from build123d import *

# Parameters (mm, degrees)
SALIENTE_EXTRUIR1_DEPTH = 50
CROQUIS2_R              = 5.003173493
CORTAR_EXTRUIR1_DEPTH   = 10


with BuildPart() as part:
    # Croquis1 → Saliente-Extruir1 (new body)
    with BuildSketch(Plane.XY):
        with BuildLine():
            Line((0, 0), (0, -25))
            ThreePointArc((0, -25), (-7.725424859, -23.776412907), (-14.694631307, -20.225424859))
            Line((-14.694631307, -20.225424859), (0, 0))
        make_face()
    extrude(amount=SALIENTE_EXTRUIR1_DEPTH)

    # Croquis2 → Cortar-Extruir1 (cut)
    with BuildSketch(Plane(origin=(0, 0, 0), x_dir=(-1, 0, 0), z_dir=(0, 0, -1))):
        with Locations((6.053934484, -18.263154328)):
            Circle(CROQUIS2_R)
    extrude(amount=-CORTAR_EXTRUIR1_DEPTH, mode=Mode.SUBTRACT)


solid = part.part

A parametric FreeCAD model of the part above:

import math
import FreeCAD as App
import Part
import Sketcher
Q = App.Units.Quantity

doc = App.newDocument("Part")
body = doc.addObject("PartDesign::Body", "Body")

sketch1 = body.newObject("Sketcher::SketchObject", "Sketch")
sketch1.AttachmentSupport = (doc.getObject("XY_Plane"), [""])
sketch1.MapMode = "FlatFace"
sketch1.addGeometry(Part.LineSegment(App.Vector(0, -25, 0), App.Vector(0, 0, 0)), False)
sketch1.addGeometry(Part.LineSegment(App.Vector(0, 0, 0), App.Vector(-14.694631, -20.225425, 0)), False)
sketch1.addGeometry(Part.ArcOfCircle(Part.Circle(App.Vector(0, 0, 0), App.Vector(0, 0, 1), 25), math.radians(-126), math.radians(-90)), False)
sketch1.addConstraint(Sketcher.Constraint("Coincident", 0, 2, 1, 1))
sketch1.addConstraint(Sketcher.Constraint("Coincident", 1, 2, 2, 1))
sketch1.addConstraint(Sketcher.Constraint("Coincident", 2, 2, 0, 1))
sketch1.addConstraint(Sketcher.Constraint("Vertical", 0))
sketch1.addConstraint(Sketcher.Constraint("Coincident", 2, 3, -1, 1))
sketch1.addConstraint(Sketcher.Constraint("Coincident", 0, 2, -1, 1))
sketch1.addConstraint(Sketcher.Constraint("Radius", 2, 25.0))
sketch1.addConstraint(Sketcher.Constraint("Angle", 1, Q("-126 deg")))
pad1 = body.newObject("PartDesign::Pad", "Pad")
pad1.Profile = sketch1
pad1.Length = 50

sketch2 = body.newObject("Sketcher::SketchObject", "Sketch001")
sketch2.AttachmentSupport = (doc.getObject("XY_Plane"), [""])
sketch2.MapMode = "FlatFace"
sketch2.addGeometry(Part.Circle(App.Vector(-6.053934, -18.263154, 0), App.Vector(0, 0, 1), 5.003173), False)
sketch2.addConstraint(Sketcher.Constraint("Diameter", 0, 10.006347))
sketch2.addConstraint(Sketcher.Constraint("DistanceX", 0, 3, -1, 1, 6.053934))
sketch2.addConstraint(Sketcher.Constraint("DistanceY", 0, 3, -1, 1, 18.263154))
pocket1 = body.newObject("PartDesign::Pocket", "Pocket")
pocket1.Profile = sketch2
pocket1.Length = 10
pocket1.Reversed = True

doc.recompute()
